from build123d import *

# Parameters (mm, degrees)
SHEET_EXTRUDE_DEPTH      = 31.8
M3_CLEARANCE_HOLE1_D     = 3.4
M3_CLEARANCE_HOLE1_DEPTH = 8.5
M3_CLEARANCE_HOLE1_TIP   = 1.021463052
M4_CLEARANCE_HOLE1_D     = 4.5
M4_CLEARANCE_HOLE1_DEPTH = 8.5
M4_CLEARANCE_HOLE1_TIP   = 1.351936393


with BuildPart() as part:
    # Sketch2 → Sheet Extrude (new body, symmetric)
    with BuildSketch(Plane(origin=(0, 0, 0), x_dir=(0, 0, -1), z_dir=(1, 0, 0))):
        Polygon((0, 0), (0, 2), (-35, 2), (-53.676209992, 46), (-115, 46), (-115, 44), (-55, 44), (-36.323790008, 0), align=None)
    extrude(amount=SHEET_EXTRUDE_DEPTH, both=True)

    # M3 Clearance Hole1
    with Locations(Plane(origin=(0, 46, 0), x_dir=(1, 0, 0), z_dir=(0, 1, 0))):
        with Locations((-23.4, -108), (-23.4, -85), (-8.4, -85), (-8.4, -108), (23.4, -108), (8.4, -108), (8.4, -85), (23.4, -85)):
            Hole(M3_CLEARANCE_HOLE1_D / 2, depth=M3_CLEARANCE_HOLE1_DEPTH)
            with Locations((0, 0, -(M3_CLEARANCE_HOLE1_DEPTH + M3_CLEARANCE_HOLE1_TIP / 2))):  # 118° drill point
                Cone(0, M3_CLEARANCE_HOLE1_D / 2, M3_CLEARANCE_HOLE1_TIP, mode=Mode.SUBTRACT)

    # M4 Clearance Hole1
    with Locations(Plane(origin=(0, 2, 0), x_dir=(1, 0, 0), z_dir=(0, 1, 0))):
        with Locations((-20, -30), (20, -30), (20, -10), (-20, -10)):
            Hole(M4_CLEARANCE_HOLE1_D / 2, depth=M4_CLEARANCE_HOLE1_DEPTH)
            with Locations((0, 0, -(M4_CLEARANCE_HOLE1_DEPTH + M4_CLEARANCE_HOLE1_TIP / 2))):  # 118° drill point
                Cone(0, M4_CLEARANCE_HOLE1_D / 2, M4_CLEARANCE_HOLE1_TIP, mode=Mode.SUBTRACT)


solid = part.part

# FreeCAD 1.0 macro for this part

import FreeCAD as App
import Part
import Sketcher

V = App.Vector
Q = App.Units.Quantity

doc = App.newDocument("Part")
body = doc.addObject("PartDesign::Body", "Body")

# Sketch on YZ plane
sketch1 = body.newObject("Sketcher::SketchObject", "Sketch")
sketch1.AttachmentSupport = (doc.getObject("YZ_Plane"), [""])
sketch1.MapMode = "FlatFace"
sketch1.addGeometry([
    Part.LineSegment(V(0, 0, 0), V(2, 0, 0)),  # 0
    Part.LineSegment(V(2, 0, 0), V(2, 35, 0)),  # 1
    Part.LineSegment(V(2, 35, 0), V(46, 53.7, 0)),  # 2
    Part.LineSegment(V(46, 53.7, 0), V(46, 115, 0)),  # 3
    Part.LineSegment(V(46, 115, 0), V(44, 115, 0)),  # 4
    Part.LineSegment(V(44, 115, 0), V(44, 55, 0)),  # 5
    Part.LineSegment(V(44, 55, 0), V(0, 36.3, 0)),  # 6
    Part.LineSegment(V(0, 36.3, 0), V(0, 0, 0)),  # 7
], False)
sketch1.addConstraint([
    Sketcher.Constraint("Coincident", 0, 2, 1, 1),
    Sketcher.Constraint("Coincident", 1, 2, 2, 1),
    Sketcher.Constraint("Coincident", 2, 2, 3, 1),
    Sketcher.Constraint("Coincident", 3, 2, 4, 1),
    Sketcher.Constraint("Coincident", 4, 2, 5, 1),
    Sketcher.Constraint("Coincident", 5, 2, 6, 1),
    Sketcher.Constraint("Coincident", 6, 2, 7, 1),
    Sketcher.Constraint("Coincident", 7, 2, 0, 1),
    Sketcher.Constraint("Horizontal", 0),
    Sketcher.Constraint("Vertical", 1),
    Sketcher.Constraint("Vertical", 3),
    Sketcher.Constraint("Horizontal", 4),
    Sketcher.Constraint("Vertical", 5),
    Sketcher.Constraint("Vertical", 7),
    Sketcher.Constraint("Coincident", 7, 2, -1, 1),
    Sketcher.Constraint("Parallel", 2, 6),
    Sketcher.Constraint("Equal", 0, 4),
    Sketcher.Constraint("DistanceX", 0, 1, 0, 2, Q("2 mm")),
    Sketcher.Constraint("DistanceY", 1, 1, 1, 2, Q("35 mm")),
    Sketcher.Constraint("DistanceY", 5, 2, 5, 1, Q("60 mm")),
    Sketcher.Constraint("DistanceX", -1, 1, 2, 2, Q("46 mm")),
    Sketcher.Constraint("DistanceY", -1, 1, 3, 2, Q("115 mm")),
    Sketcher.Constraint("DistanceY", 3, 1, 3, 2, Q("61.32379 mm")),
])
pad1 = body.newObject("PartDesign::Pad", "Pad")
pad1.Profile = sketch1
pad1.Length = 63.6
pad1.Midplane = True

# Sketch on XZ plane
sketch2 = body.newObject("Sketcher::SketchObject", "Sketch001")
sketch2.AttachmentSupport = (doc.getObject("XZ_Plane"), [""])
sketch2.MapMode = "FlatFace"
sketch2.AttachmentOffset = App.Placement(V(0, 0, -46), App.Rotation())
sketch2.addGeometry([
    Part.Circle(V(-23.4, 108, 0), V(0, 0, 1), 1.7),  # 0
    Part.Circle(V(-23.4, 85, 0), V(0, 0, 1), 1.7),  # 1
    Part.Circle(V(-8.4, 85, 0), V(0, 0, 1), 1.7),  # 2
    Part.Circle(V(-8.4, 108, 0), V(0, 0, 1), 1.7),  # 3
    Part.Circle(V(23.4, 108, 0), V(0, 0, 1), 1.7),  # 4
    Part.Circle(V(8.4, 108, 0), V(0, 0, 1), 1.7),  # 5
    Part.Circle(V(8.4, 85, 0), V(0, 0, 1), 1.7),  # 6
    Part.Circle(V(23.4, 85, 0), V(0, 0, 1), 1.7),  # 7
], False)
sketch2.addConstraint([
    Sketcher.Constraint("Equal", 0, 1),
    Sketcher.Constraint("Equal", 1, 2),
    Sketcher.Constraint("Equal", 2, 3),
    Sketcher.Constraint("Equal", 3, 4),
    Sketcher.Constraint("Equal", 4, 5),
    Sketcher.Constraint("Equal", 5, 6),
    Sketcher.Constraint("Equal", 6, 7),
    Sketcher.Constraint("Symmetric", 0, 3, 4, 3, -2),
    Sketcher.Constraint("Symmetric", 3, 3, 5, 3, -2),
    Sketcher.Constraint("Symmetric", 2, 3, 6, 3, -2),
    Sketcher.Constraint("Symmetric", 1, 3, 7, 3, -2),
    Sketcher.Constraint("Horizontal", 1, 3, 2, 3),
    Sketcher.Constraint("Horizontal", 0, 3, 3, 3),
    Sketcher.Constraint("Vertical", 0, 3, 1, 3),
    Sketcher.Constraint("Vertical", 2, 3, 3, 3),
    Sketcher.Constraint("Diameter", 0, Q("3.4 mm")),
    Sketcher.Constraint("DistanceY", -1, 1, 0, 3, Q("108 mm")),
    Sketcher.Constraint("DistanceY", -1, 1, 1, 3, Q("85 mm")),
    Sketcher.Constraint("DistanceX", 1, 3, 2, 3, Q("15 mm")),
    Sketcher.Constraint("DistanceX", 0, 3, -1, 1, Q("23.4 mm")),
])
doc.recompute()
hole = body.newObject("PartDesign::Hole", "Hole")
hole.Profile = sketch2
hole.ThreadType = "None"
hole.Diameter = 3.4
hole.DepthType = "Dimension"
hole.Depth = 8.5
hole.DrillPoint = "Angled"
hole.DrillPointAngle = 118
hole.Reversed = True

# Sketch on XZ plane
sketch3 = body.newObject("Sketcher::SketchObject", "Sketch002")
sketch3.AttachmentSupport = (doc.getObject("XZ_Plane"), [""])
sketch3.MapMode = "FlatFace"
sketch3.AttachmentOffset = App.Placement(V(0, 0, -2), App.Rotation())
sketch3.addGeometry([
    Part.Circle(V(-20, 30, 0), V(0, 0, 1), 2.2),
    Part.Circle(V(20, 30, 0), V(0, 0, 1), 2.2),
    Part.Circle(V(20, 10, 0), V(0, 0, 1), 2.2),
    Part.Circle(V(-20, 10, 0), V(0, 0, 1), 2.2),
], False)
sketch3.addConstraint([
    Sketcher.Constraint("Equal", 0, 1),
    Sketcher.Constraint("Equal", 1, 2),
    Sketcher.Constraint("Equal", 2, 3),
    Sketcher.Constraint("Symmetric", 0, 3, 1, 3, -2),
    Sketcher.Constraint("Symmetric", 2, 3, 3, 3, -2),
    Sketcher.Constraint("Vertical", 1, 3, 2, 3),
    Sketcher.Constraint("Diameter", 0, Q("4.5 mm")),
    Sketcher.Constraint("DistanceX", 0, 3, -1, 1, Q("20 mm")),
    Sketcher.Constraint("DistanceY", -1, 1, 0, 3, Q("30 mm")),
    Sketcher.Constraint("DistanceY", -1, 1, 2, 3, Q("10 mm")),
])
doc.recompute()
hole2 = body.newObject("PartDesign::Hole", "Hole001")
hole2.Profile = sketch3
hole2.ThreadType = "None"
hole2.Diameter = 4.5
hole2.DepthType = "Dimension"
hole2.Depth = 8.5
hole2.DrillPoint = "Angled"
hole2.DrillPointAngle = 118
hole2.Reversed = True

doc.recompute()
